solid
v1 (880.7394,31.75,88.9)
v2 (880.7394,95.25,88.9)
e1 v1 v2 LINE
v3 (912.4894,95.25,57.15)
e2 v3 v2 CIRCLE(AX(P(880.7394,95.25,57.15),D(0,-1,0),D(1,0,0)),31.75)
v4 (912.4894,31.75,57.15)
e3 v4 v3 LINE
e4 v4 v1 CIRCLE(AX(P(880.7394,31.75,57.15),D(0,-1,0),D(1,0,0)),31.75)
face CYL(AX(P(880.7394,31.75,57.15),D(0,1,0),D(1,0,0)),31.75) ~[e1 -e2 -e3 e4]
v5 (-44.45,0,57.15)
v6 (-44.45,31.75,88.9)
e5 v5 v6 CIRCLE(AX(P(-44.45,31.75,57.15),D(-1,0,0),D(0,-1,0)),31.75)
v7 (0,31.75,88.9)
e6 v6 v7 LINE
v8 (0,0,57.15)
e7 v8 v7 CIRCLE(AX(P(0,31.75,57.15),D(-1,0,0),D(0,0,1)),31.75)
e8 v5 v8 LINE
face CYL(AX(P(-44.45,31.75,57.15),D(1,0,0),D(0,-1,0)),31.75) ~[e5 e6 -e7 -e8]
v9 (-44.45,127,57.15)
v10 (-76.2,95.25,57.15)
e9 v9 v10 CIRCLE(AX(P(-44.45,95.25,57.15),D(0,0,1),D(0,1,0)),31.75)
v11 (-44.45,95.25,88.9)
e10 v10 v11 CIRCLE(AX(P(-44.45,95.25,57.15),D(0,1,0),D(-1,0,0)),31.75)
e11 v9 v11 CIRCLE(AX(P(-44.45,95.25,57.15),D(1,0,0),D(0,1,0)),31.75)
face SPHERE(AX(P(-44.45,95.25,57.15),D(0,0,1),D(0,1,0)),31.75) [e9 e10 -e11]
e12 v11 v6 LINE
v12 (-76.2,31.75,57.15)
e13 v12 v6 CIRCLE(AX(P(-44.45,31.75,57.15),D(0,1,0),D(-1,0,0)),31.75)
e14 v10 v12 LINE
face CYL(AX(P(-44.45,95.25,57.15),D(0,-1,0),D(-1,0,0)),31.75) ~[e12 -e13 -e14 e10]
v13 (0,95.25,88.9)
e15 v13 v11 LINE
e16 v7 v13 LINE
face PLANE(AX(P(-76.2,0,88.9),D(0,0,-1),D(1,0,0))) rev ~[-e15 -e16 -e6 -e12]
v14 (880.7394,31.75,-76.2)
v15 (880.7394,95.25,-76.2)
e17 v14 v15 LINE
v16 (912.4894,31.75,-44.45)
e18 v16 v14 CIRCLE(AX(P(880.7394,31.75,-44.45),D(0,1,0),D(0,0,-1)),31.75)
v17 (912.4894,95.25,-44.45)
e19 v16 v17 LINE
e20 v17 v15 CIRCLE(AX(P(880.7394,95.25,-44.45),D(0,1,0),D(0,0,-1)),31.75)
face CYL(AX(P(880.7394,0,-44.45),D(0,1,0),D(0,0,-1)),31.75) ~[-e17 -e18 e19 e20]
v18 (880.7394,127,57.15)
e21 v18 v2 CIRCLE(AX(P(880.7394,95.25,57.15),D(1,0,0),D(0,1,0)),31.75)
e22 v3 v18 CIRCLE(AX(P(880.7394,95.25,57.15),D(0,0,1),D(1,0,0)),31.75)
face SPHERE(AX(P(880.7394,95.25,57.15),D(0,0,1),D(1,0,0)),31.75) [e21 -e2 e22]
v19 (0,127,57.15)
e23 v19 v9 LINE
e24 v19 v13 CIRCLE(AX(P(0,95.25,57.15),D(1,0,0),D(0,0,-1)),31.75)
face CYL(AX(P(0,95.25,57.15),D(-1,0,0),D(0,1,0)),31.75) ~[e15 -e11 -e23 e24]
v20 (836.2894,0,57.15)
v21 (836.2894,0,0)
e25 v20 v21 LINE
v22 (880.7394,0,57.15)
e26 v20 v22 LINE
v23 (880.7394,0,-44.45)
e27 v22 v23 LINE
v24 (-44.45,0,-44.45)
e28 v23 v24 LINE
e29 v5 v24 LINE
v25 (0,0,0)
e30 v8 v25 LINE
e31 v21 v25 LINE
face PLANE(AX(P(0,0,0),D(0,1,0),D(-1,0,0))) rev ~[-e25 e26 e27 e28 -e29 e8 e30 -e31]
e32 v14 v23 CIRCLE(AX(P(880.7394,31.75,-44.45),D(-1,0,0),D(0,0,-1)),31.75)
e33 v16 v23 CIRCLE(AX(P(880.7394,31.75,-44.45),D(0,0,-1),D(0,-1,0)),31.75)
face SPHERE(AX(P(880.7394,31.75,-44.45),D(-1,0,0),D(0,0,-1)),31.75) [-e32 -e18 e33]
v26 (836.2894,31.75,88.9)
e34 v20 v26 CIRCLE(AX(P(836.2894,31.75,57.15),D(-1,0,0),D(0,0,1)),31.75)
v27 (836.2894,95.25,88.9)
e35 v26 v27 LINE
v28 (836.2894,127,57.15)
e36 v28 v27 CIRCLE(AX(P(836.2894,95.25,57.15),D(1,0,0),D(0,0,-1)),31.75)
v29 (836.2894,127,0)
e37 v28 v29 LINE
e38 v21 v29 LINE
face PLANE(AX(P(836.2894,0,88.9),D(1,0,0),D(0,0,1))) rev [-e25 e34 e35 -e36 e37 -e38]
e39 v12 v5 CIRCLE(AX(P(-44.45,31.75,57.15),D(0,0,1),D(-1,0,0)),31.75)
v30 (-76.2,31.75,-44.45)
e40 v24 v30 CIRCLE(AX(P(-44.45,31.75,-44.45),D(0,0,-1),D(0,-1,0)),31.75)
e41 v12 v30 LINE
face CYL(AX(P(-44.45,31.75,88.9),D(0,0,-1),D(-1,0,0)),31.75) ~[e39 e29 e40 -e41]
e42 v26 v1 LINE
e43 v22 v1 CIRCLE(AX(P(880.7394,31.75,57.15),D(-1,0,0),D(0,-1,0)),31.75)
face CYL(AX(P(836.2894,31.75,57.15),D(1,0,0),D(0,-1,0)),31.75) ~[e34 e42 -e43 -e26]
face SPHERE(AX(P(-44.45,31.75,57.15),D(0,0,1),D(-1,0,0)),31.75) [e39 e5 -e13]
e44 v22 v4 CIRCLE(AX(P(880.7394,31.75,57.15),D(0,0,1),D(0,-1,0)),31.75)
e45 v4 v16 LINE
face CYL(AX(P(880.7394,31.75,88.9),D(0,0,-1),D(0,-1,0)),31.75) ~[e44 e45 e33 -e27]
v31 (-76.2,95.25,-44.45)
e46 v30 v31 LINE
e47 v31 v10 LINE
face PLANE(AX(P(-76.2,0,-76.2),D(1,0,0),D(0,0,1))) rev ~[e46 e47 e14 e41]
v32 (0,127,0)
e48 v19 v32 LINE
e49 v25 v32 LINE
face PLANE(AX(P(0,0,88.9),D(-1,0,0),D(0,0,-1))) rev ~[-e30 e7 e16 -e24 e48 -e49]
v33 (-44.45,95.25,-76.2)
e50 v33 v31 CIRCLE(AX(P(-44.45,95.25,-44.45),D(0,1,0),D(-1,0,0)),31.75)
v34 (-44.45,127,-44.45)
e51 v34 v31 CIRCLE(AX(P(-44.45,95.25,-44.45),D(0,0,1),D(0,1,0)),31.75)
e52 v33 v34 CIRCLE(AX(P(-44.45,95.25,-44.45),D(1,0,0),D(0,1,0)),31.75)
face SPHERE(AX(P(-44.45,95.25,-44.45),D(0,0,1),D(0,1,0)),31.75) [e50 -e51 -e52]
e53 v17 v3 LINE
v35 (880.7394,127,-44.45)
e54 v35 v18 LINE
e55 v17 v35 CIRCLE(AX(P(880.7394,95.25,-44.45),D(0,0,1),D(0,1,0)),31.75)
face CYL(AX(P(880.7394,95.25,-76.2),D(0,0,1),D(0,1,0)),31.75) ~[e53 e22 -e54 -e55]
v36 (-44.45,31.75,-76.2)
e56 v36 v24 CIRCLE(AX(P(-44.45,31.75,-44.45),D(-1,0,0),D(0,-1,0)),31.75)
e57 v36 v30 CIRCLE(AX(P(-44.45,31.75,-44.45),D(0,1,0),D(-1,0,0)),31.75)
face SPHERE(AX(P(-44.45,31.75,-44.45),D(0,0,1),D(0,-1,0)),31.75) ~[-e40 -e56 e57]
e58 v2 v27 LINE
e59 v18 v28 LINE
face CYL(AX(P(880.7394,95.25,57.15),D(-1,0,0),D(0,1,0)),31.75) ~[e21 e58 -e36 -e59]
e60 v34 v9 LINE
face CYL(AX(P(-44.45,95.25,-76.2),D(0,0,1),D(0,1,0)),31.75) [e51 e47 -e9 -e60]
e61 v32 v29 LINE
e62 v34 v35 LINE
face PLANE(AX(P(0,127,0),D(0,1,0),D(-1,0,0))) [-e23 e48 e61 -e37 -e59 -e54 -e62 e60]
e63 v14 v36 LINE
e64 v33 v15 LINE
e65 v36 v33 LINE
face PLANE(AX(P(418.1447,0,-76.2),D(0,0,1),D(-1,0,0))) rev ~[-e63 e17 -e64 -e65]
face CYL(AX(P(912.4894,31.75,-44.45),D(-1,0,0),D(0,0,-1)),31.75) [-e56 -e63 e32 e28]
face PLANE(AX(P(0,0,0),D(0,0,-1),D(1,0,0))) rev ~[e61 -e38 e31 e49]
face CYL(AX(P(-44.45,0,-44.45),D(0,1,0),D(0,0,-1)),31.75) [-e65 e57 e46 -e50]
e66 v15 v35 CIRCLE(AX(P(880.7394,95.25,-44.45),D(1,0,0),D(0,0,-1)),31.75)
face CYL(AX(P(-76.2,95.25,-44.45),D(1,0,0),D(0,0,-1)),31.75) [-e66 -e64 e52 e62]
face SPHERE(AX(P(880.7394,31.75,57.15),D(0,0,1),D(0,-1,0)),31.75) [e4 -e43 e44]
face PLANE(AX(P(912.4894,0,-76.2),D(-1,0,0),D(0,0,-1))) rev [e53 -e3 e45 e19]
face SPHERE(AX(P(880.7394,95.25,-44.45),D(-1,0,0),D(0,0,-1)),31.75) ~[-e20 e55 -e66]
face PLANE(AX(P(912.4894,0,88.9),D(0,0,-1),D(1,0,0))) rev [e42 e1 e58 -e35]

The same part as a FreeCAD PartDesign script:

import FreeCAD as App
import Part
import Sketcher
Q = App.Units.Quantity


def edges_at(feature, points):
    """Names of the edges that pass closest to the given points."""
    edges = feature.Shape.Edges
    near = lambda p: min(range(len(edges)), key=lambda i: edges[i].distToShape(Part.Vertex(*p))[0])
    return sorted({f"Edge{near(p) + 1}" for p in points})

doc = App.newDocument("Part")
body = doc.addObject("PartDesign::Body", "Body")

sketch1 = doc.addObject("Sketcher::SketchObject", "Sketch")
body.addObject(sketch1)
sketch1.AttachmentSupport = (doc.XZ_Plane, [""])
sketch1.MapMode = "FlatFace"
sketch1.addGeometry([
    Part.LineSegment(App.Vector(418, -76, 0), App.Vector(-76, -76, 0)),
    Part.LineSegment(App.Vector(-76, -76, 0), App.Vector(-76, 89, 0)),
    Part.LineSegment(App.Vector(-76, 89, 0), App.Vector(0, 89, 0)),
    Part.LineSegment(App.Vector(0, 89, 0), App.Vector(0, 0, 0)),
    Part.LineSegment(App.Vector(0, 0, 0), App.Vector(418, 0, 0)),
    Part.LineSegment(App.Vector(418, 0, 0), App.Vector(418, -76, 0)),
], False)
sketch1.addConstraint([
    Sketcher.Constraint("Coincident", 0, 2, 1, 1),
    Sketcher.Constraint("Coincident", 1, 2, 2, 1),
    Sketcher.Constraint("Coincident", 2, 2, 3, 1),
    Sketcher.Constraint("Coincident", 3, 2, 4, 1),
    Sketcher.Constraint("Coincident", 4, 2, 5, 1),
    Sketcher.Constraint("Coincident", 5, 2, 0, 1),
    Sketcher.Constraint("Horizontal", 0),
    Sketcher.Constraint("Vertical", 1),
    Sketcher.Constraint("Horizontal", 2),
    Sketcher.Constraint("Vertical", 3),
    Sketcher.Constraint("Horizontal", 4),
    Sketcher.Constraint("Vertical", 5),
    Sketcher.Constraint("Coincident", 3, 2, -1, 1),
    Sketcher.Constraint("Equal", 2, 5),
    Sketcher.Constraint("DistanceX", 2, 1, 2, 2, Q("3 in")),
    Sketcher.Constraint("DistanceY", 3, 2, 3, 1, Q("3.5 in")),
    Sketcher.Constraint("DistanceX", 4, 1, 4, 2, Q("16.4624 in")),
])
pad1 = doc.addObject("PartDesign::Pad", "Pad")
body.addObject(pad1)
pad1.Profile = sketch1
pad1.Length = Q("5 in")
pad1.Reversed = True
doc.recompute()

datumplane = doc.addObject("PartDesign::Plane", "DatumPlane")
body.addObject(datumplane)
datumplane.AttachmentSupport = (doc.YZ_Plane, [""])
datumplane.MapMode = "FlatFace"
datumplane.AttachmentOffset = App.Placement(App.Vector(0, 0, 16.4623898 * 25.4), App.Rotation())
mirrored = doc.addObject("PartDesign::Mirrored", "Mirrored")
body.addObject(mirrored)
mirrored.Originals = [pad1]
mirrored.MirrorPlane = (datumplane, [""])
body.Tip = mirrored
doc.recompute()

fillet = doc.addObject("PartDesign::Fillet", "Fillet")
body.addObject(fillet)
fillet.Base = (mirrored, edges_at(mirrored, [
    (-76.2, 127, 6.35),
    (-76.2, 0, 6.35),
    (418.145, 127, -76.2),
    (418.145, 0, -76.2),
    (-76.2, 63.5, -76.2),
    (912.49, 63.5, -76.2),
    (912.49, 127, 6.35),
    (912.49, 0, 6.35),
]))
fillet.Radius = Q("1.25 in")
doc.recompute()

fillet2 = doc.addObject("PartDesign::Fillet", "Fillet001")
body.addObject(fillet2)
fillet2.Base = (fillet, edges_at(fillet, [
    (912.49, 63.5, 88.9),
    (903.19, 9.299, 88.9),
    (858.514, 0, 88.9),
    (858.514, 127, 88.9),
    (903.19, 117.701, 88.9),
]))
fillet2.Radius = Q("1.25 in")
doc.recompute()

fillet3 = doc.addObject("PartDesign::Fillet", "Fillet002")
body.addObject(fillet3)
fillet3.Base = (fillet2, edges_at(fillet2, [
    (-66.901, 117.701, 88.9),
    (-76.2, 63.5, 88.9),
    (-66.901, 9.299, 88.9),
    (-22.225, 0, 88.9),
    (-22.225, 127, 88.9),
]))
fillet3.Radius = Q("1.25 in")

doc.recompute()
